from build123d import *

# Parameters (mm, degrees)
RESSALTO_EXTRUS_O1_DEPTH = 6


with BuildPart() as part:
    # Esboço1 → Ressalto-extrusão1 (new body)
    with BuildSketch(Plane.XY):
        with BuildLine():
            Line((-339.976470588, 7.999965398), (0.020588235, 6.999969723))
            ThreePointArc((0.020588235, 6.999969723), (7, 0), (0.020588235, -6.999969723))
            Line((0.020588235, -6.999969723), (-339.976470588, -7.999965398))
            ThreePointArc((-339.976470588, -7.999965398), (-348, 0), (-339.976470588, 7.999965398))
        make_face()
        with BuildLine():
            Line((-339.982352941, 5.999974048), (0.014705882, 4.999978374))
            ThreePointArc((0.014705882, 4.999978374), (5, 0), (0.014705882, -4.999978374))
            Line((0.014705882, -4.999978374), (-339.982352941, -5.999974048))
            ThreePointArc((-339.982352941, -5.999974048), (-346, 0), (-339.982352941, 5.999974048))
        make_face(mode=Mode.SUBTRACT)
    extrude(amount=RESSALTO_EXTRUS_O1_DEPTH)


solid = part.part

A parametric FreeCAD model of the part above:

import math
import FreeCAD as App
import Part
import Sketcher
from FreeCAD import Vector
Q = App.Units.Quantity

doc = App.newDocument("Part")
body = doc.addObject("PartDesign::Body", "Body")

# Sketch on XY plane
sketch1 = body.newObject("Sketcher::SketchObject", "Sketch")
sketch1.AttachmentSupport = (doc.getObject("XY_Plane"), [""])
sketch1.MapMode = "FlatFace"
sketch1.addGeometry(Part.LineSegment(Vector(0, 7, 0), Vector(-340, 8, 0)), False)
sketch1.addGeometry(Part.ArcOfCircle(Part.Circle(Vector(-340, 0, 0), Vector(0, 0, 1), 8), math.radians(90), math.radians(270)), False)
sketch1.addGeometry(Part.LineSegment(Vector(-340, -8, 0), Vector(0, -7, 0)), False)
sketch1.addGeometry(Part.ArcOfCircle(Part.Circle(Vector(0, 0, 0), Vector(0, 0, 1), 7), math.radians(-90), math.radians(90)), False)
sketch1.addGeometry(Part.LineSegment(Vector(-340, 6, 0), Vector(0, 5, 0)), False)
sketch1.addGeometry(Part.ArcOfCircle(Part.Circle(Vector(0, 0, 0), Vector(0, 0, 1), 5), math.radians(-90), math.radians(90)), False)
sketch1.addGeometry(Part.LineSegment(Vector(0, -5, 0), Vector(-340, -6, 0)), False)
sketch1.addGeometry(Part.ArcOfCircle(Part.Circle(Vector(-340, 0, 0), Vector(0, 0, 1), 6), math.radians(90), math.radians(270)), False)
sketch1.addConstraint(Sketcher.Constraint("Tangent", 0, 2, 1, 1))
sketch1.addConstraint(Sketcher.Constraint("Tangent", 1, 2, 2, 1))
sketch1.addConstraint(Sketcher.Constraint("Tangent", 2, 2, 3, 1))
sketch1.addConstraint(Sketcher.Constraint("Tangent", 3, 2, 0, 1))
sketch1.addConstraint(Sketcher.Constraint("Tangent", 4, 2, 5, 2))
sketch1.addConstraint(Sketcher.Constraint("Tangent", 5, 1, 6, 1))
sketch1.addConstraint(Sketcher.Constraint("Tangent", 6, 2, 7, 2))
sketch1.addConstraint(Sketcher.Constraint("Tangent", 7, 1, 4, 1))
sketch1.addConstraint(Sketcher.Constraint("Coincident", 3, 3, -1, 1))
sketch1.addConstraint(Sketcher.Constraint("Coincident", 5, 3, -1, 1))
sketch1.addConstraint(Sketcher.Constraint("Coincident", 7, 3, 1, 3))
sketch1.addConstraint(Sketcher.Constraint("PointOnObject", 1, 3, -1))
sketch1.addConstraint(Sketcher.Constraint("Parallel", 0, 4))
sketch1.addConstraint(Sketcher.Constraint("Radius", 1, Q("8 mm")))
sketch1.addConstraint(Sketcher.Constraint("Radius", 3, Q("7 mm")))
sketch1.addConstraint(Sketcher.Constraint("Radius", 5, Q("5 mm")))
sketch1.addConstraint(Sketcher.Constraint("DistanceX", 1, 3, -1, 1, Q("340 mm")))
pad1 = body.newObject("PartDesign::Pad", "Pad")
pad1.Profile = sketch1
pad1.Length = 6

doc.recompute()
